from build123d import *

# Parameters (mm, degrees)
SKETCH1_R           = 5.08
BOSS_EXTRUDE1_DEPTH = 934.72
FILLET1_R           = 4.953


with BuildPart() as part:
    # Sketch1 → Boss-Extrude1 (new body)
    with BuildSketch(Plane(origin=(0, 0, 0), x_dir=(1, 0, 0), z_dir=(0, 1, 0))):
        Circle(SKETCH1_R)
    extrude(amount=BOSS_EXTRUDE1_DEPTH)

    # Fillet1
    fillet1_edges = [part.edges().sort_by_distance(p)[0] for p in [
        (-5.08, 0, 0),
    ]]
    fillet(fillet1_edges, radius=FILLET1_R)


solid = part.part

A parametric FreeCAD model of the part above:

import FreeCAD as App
import Part
import Sketcher
from FreeCAD import Vector
Q = App.Units.Quantity


def edges_at(feature, points):
    """Names of the edges that pass closest to the given points."""
    edges = feature.Shape.Edges
    near = lambda p: min(range(len(edges)), key=lambda i: edges[i].distToShape(Part.Vertex(*p))[0])
    return sorted({f"Edge{near(p) + 1}" for p in points})

doc = App.newDocument("Part")
body = doc.addObject("PartDesign::Body", "Body")

sketch1 = doc.addObject("Sketcher::SketchObject", "Sketch")
body.addObject(sketch1)
sketch1.AttachmentSupport = (doc.XZ_Plane, [""])
sketch1.MapMode = "FlatFace"
sketch1.addGeometry(Part.Circle(Vector(0, 0, 0), Vector(0, 0, 1), 5.08), False)
sketch1.addConstraint([
    Sketcher.Constraint("Coincident", 0, 3, -1, 1),
    Sketcher.Constraint("Diameter", 0, Q("0.4 in")),
])
pad1 = doc.addObject("PartDesign::Pad", "Pad")
body.addObject(pad1)
pad1.Profile = sketch1
pad1.Length = Q("36.8 in")
pad1.Reversed = True
doc.recompute()

fillet = doc.addObject("PartDesign::Fillet", "Fillet")
body.addObject(fillet)
fillet.Base = (pad1, edges_at(pad1, [(-5.08, 0, 0)]))
fillet.Radius = Q("0.195 in")

doc.recompute()
